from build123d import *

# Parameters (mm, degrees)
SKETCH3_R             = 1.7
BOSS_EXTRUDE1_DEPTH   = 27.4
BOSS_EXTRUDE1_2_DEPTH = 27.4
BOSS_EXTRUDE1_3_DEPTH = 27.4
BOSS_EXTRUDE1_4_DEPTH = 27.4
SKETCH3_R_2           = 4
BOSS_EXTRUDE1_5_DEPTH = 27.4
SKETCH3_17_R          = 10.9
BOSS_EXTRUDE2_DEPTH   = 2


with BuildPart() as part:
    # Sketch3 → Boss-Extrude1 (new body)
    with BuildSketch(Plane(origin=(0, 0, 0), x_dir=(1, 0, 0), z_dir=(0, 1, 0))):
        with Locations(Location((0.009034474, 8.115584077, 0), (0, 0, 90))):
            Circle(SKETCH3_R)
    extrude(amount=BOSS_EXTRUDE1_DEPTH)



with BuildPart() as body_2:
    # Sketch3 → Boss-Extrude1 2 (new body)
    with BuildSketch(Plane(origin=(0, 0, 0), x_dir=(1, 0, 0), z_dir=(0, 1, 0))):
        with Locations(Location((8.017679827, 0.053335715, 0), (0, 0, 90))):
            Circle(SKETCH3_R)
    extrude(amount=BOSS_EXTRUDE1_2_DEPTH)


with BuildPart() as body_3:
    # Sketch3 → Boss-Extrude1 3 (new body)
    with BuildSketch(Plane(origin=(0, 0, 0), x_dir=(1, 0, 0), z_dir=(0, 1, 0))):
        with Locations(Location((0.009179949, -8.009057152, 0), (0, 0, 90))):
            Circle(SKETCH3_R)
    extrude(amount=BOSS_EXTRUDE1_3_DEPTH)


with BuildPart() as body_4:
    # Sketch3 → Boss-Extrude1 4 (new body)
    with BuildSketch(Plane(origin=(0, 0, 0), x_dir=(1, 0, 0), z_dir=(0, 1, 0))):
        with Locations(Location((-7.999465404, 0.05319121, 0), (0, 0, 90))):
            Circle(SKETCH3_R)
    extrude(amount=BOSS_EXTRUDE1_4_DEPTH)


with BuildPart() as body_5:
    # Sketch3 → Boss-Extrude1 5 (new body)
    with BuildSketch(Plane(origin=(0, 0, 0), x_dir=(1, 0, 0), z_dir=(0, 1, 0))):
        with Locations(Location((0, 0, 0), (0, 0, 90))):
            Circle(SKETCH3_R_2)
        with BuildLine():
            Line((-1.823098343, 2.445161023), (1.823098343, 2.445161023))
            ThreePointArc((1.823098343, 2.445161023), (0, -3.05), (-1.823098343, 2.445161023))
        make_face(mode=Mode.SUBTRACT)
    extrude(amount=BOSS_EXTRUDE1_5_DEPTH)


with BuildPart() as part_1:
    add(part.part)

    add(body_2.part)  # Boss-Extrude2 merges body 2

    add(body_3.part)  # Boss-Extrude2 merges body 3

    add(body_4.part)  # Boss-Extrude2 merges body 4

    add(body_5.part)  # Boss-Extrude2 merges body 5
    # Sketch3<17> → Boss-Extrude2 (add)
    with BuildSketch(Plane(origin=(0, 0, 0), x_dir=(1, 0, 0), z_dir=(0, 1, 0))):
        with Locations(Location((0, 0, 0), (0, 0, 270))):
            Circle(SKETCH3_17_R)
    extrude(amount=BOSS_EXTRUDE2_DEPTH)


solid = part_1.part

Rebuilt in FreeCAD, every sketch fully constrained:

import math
import FreeCAD as App
import Part
import Sketcher
Q = App.Units.Quantity

doc = App.newDocument("Part")
body = doc.addObject("PartDesign::Body", "Body")

sketch1 = doc.addObject("Sketcher::SketchObject", "Sketch")
body.addObject(sketch1)
sketch1.AttachmentSupport = (doc.XZ_Plane, [""])
sketch1.MapMode = "FlatFace"
sketch1.addGeometry(Part.Circle(App.Vector(0.009034, -8.115584, 0), App.Vector(0, 0, 1), 1.7), False)
sketch1.addConstraint([
    Sketcher.Constraint("Diameter", 0, Q("3.4 mm")),
    Sketcher.Constraint("DistanceX", -1, 1, 0, 3, Q("0.009034 mm")),
    Sketcher.Constraint("DistanceY", 0, 3, -1, 1, Q("8.115584 mm")),
])
pad1 = doc.addObject("PartDesign::Pad", "Pad")
body.addObject(pad1)
pad1.Profile = sketch1
pad1.Length = 27.4
pad1.Reversed = True
body2 = doc.addObject("PartDesign::Body", "Body001")

sketch2 = doc.addObject("Sketcher::SketchObject", "Sketch001")
body2.addObject(sketch2)
sketch2.AttachmentSupport = (doc.getObject("XZ_Plane001"), [""])
sketch2.MapMode = "FlatFace"
sketch2.addGeometry(Part.Circle(App.Vector(8.01768, -0.053336, 0), App.Vector(0, 0, 1), 1.7), False)
sketch2.addConstraint([
    Sketcher.Constraint("Diameter", 0, Q("3.4 mm")),
    Sketcher.Constraint("DistanceX", -1, 1, 0, 3, Q("8.01768 mm")),
    Sketcher.Constraint("DistanceY", 0, 3, -1, 1, Q("0.053336 mm")),
])
pad2 = doc.addObject("PartDesign::Pad", "Pad001")
body2.addObject(pad2)
pad2.Profile = sketch2
pad2.Length = 27.4
pad2.Reversed = True
body3 = doc.addObject("PartDesign::Body", "Body002")

sketch3 = doc.addObject("Sketcher::SketchObject", "Sketch002")
body3.addObject(sketch3)
sketch3.AttachmentSupport = (doc.getObject("XZ_Plane002"), [""])
sketch3.MapMode = "FlatFace"
sketch3.addGeometry(Part.Circle(App.Vector(0.00918, 8.009057, 0), App.Vector(0, 0, 1), 1.7), False)
sketch3.addConstraint([
    Sketcher.Constraint("Diameter", 0, Q("3.4 mm")),
    Sketcher.Constraint("DistanceX", -1, 1, 0, 3, Q("0.00918 mm")),
    Sketcher.Constraint("DistanceY", -1, 1, 0, 3, Q("8.009057 mm")),
])
pad3 = doc.addObject("PartDesign::Pad", "Pad002")
body3.addObject(pad3)
pad3.Profile = sketch3
pad3.Length = 27.4
pad3.Reversed = True
body4 = doc.addObject("PartDesign::Body", "Body003")

sketch4 = doc.addObject("Sketcher::SketchObject", "Sketch003")
body4.addObject(sketch4)
sketch4.AttachmentSupport = (doc.getObject("XZ_Plane003"), [""])
sketch4.MapMode = "FlatFace"
sketch4.addGeometry(Part.Circle(App.Vector(-7.999465, -0.053191, 0), App.Vector(0, 0, 1), 1.7), False)
sketch4.addConstraint([
    Sketcher.Constraint("Diameter", 0, Q("3.4 mm")),
    Sketcher.Constraint("DistanceY", 0, 3, -1, 1, Q("0.053191 mm")),
    Sketcher.Constraint("DistanceX", 0, 3, -1, 1, Q("7.999465 mm")),
])
pad4 = doc.addObject("PartDesign::Pad", "Pad003")
body4.addObject(pad4)
pad4.Profile = sketch4
pad4.Length = 27.4
pad4.Reversed = True
body5 = doc.addObject("PartDesign::Body", "Body004")

sketch5 = doc.addObject("Sketcher::SketchObject", "Sketch004")
body5.addObject(sketch5)
sketch5.AttachmentSupport = (doc.getObject("XZ_Plane004"), [""])
sketch5.MapMode = "FlatFace"
sketch5.addGeometry([
    Part.Circle(App.Vector(0, 0, 0), App.Vector(0, 0, 1), 4),
    Part.ArcOfCircle(Part.Circle(App.Vector(0, 0, 0), App.Vector(0, 0, 1), 3.05), math.radians(-53.291995), math.radians(233.291995)),
    Part.LineSegment(App.Vector(-1.823098, -2.445161, 0), App.Vector(1.823098, -2.445161, 0)),
], False)
sketch5.addConstraint([
    Sketcher.Constraint("Coincident", 1, 1, 2, 2),
    Sketcher.Constraint("Coincident", 2, 1, 1, 2),
    Sketcher.Constraint("Horizontal", 2),
    Sketcher.Constraint("Coincident", 0, 3, -1, 1),
    Sketcher.Constraint("Coincident", 1, 3, -1, 1),
    Sketcher.Constraint("Diameter", 0, Q("8 mm")),
    Sketcher.Constraint("Radius", 1, Q("3.05 mm")),
    Sketcher.Constraint("DistanceX", -1, 1, 1, 1, Q("1.823098 mm")),
])
pad5 = doc.addObject("PartDesign::Pad", "Pad004")
body5.addObject(pad5)
pad5.Profile = sketch5
pad5.Length = 27.4
pad5.Reversed = True
body.AllowCompound = True
doc.recompute()

boolean = doc.addObject("PartDesign::Boolean", "Boolean")
body.addObject(boolean)
boolean.Type = "Fuse"
boolean.addObjects([body2])
doc.recompute()

boolean2 = doc.addObject("PartDesign::Boolean", "Boolean001")
body.addObject(boolean2)
boolean2.Type = "Fuse"
boolean2.addObjects([body3])
doc.recompute()

boolean3 = doc.addObject("PartDesign::Boolean", "Boolean002")
body.addObject(boolean3)
boolean3.Type = "Fuse"
boolean3.addObjects([body4])
doc.recompute()

boolean4 = doc.addObject("PartDesign::Boolean", "Boolean003")
body.addObject(boolean4)
boolean4.Type = "Fuse"
boolean4.addObjects([body5])

sketch6 = doc.addObject("Sketcher::SketchObject", "Sketch005")
body.addObject(sketch6)
sketch6.AttachmentSupport = (doc.XZ_Plane, [""])
sketch6.MapMode = "FlatFace"
sketch6.addGeometry(Part.Circle(App.Vector(0, 0, 0), App.Vector(0, 0, 1), 10.9), False)
sketch6.addConstraint([
    Sketcher.Constraint("Coincident", 0, 3, -1, 1),
    Sketcher.Constraint("Diameter", 0, Q("21.8 mm")),
])
pad6 = doc.addObject("PartDesign::Pad", "Pad005")
body.addObject(pad6)
pad6.Profile = sketch6
pad6.Length = 2
pad6.Reversed = True

doc.recompute()
